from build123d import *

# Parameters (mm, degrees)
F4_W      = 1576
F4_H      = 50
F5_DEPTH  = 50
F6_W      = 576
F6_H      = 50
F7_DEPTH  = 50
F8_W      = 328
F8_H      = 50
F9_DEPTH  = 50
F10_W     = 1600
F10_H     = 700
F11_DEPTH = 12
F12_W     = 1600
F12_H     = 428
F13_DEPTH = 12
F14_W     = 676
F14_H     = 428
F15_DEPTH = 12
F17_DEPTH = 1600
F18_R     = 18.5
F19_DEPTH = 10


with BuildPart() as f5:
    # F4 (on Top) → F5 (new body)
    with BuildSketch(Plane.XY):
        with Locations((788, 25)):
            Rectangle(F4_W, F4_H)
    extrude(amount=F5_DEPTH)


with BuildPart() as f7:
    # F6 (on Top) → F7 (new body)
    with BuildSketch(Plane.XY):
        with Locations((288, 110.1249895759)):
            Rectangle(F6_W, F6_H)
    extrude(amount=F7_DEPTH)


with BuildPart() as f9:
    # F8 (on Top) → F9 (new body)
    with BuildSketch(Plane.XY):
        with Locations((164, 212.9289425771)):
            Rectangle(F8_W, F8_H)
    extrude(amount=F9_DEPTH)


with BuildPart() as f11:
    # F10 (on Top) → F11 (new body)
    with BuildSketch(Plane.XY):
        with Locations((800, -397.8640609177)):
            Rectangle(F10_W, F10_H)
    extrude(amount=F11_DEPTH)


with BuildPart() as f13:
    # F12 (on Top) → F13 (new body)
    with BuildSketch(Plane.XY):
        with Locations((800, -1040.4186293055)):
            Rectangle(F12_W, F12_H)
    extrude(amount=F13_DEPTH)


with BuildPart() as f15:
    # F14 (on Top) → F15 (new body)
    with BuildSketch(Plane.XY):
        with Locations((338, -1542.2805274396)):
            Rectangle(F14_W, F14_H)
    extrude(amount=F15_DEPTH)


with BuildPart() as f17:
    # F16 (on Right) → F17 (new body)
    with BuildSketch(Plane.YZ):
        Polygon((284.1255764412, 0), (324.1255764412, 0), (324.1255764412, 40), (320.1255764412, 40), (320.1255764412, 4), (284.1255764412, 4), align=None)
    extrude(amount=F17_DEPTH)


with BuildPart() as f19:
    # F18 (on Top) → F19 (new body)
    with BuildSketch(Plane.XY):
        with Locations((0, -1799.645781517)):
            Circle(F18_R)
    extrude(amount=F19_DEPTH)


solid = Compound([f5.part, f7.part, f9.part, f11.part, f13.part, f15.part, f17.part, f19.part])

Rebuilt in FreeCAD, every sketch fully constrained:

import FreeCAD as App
import Part
import Sketcher

V = App.Vector


def add_polygon(sketch, points):
    """Adds a closed chain of lines whose ends are joined by coincident constraints."""
    first, n = sketch.GeometryCount, len(points)
    for a, b in zip(points, points[1:] + points[:1]):
        sketch.addGeometry(Part.LineSegment(App.Vector(*a, 0), App.Vector(*b, 0)), False)
    for i in range(n):
        sketch.addConstraint(Sketcher.Constraint("Coincident", first + i, 2, first + (i + 1) % n, 1))

doc = App.newDocument("Part")
body = doc.addObject("PartDesign::Body", "Body")

# Sketch on XY plane
sketch1 = doc.addObject("Sketcher::SketchObject", "Sketch")
body.addObject(sketch1)
sketch1.AttachmentSupport = (doc.XY_Plane, [""])
sketch1.MapMode = "FlatFace"
add_polygon(sketch1, [(0, 50), (0, 0), (1576, 0), (1576, 50)])  # lines 0-3
sketch1.addConstraint([
    Sketcher.Constraint("Vertical", 0),
    Sketcher.Constraint("Horizontal", 1),
    Sketcher.Constraint("Vertical", 2),
    Sketcher.Constraint("Horizontal", 3),
    Sketcher.Constraint("Coincident", 0, 2, -1, 1),
    Sketcher.Constraint("DistanceX", 1, 1, 1, 2, 1576.0),
    Sketcher.Constraint("DistanceY", 0, 2, 0, 1, 50.0),
])
pad1 = doc.addObject("PartDesign::Pad", "Pad")
body.addObject(pad1)
pad1.Profile = sketch1
pad1.Length = 50
body2 = doc.addObject("PartDesign::Body", "Body001")

# Sketch on XY plane
sketch2 = doc.addObject("Sketcher::SketchObject", "Sketch001")
body2.addObject(sketch2)
sketch2.AttachmentSupport = (doc.getObject("XY_Plane001"), [""])
sketch2.MapMode = "FlatFace"
add_polygon(sketch2, [(0, 135.12499), (0, 85.12499), (576, 85.12499), (576, 135.12499)])  # lines 0-3
sketch2.addConstraint([
    Sketcher.Constraint("Vertical", 0),
    Sketcher.Constraint("Horizontal", 1),
    Sketcher.Constraint("Vertical", 2),
    Sketcher.Constraint("Horizontal", 3),
    Sketcher.Constraint("PointOnObject", 0, 2, -2),
    Sketcher.Constraint("DistanceX", 1, 1, 1, 2, 576.0),
    Sketcher.Constraint("DistanceY", 0, 2, 0, 1, 50.0),
    Sketcher.Constraint("DistanceY", -1, 1, 0, 2, 85.12499),
])
pad2 = doc.addObject("PartDesign::Pad", "Pad001")
body2.addObject(pad2)
pad2.Profile = sketch2
pad2.Length = 50
body3 = doc.addObject("PartDesign::Body", "Body002")

# Sketch on XY plane
sketch3 = doc.addObject("Sketcher::SketchObject", "Sketch002")
body3.addObject(sketch3)
sketch3.AttachmentSupport = (doc.getObject("XY_Plane002"), [""])
sketch3.MapMode = "FlatFace"
add_polygon(sketch3, [(0, 237.928943), (0, 187.928943), (328, 187.928943), (328, 237.928943)])  # lines 0-3
sketch3.addConstraint([
    Sketcher.Constraint("Vertical", 0),
    Sketcher.Constraint("Horizontal", 1),
    Sketcher.Constraint("Vertical", 2),
    Sketcher.Constraint("Horizontal", 3),
    Sketcher.Constraint("PointOnObject", 0, 2, -2),
    Sketcher.Constraint("DistanceX", 1, 1, 1, 2, 328.0),
    Sketcher.Constraint("DistanceY", 0, 2, 0, 1, 50.0),
    Sketcher.Constraint("DistanceY", -1, 1, 0, 2, 187.928943),
])
pad3 = doc.addObject("PartDesign::Pad", "Pad002")
body3.addObject(pad3)
pad3.Profile = sketch3
pad3.Length = 50
body4 = doc.addObject("PartDesign::Body", "Body003")

# Sketch on XY plane
sketch4 = doc.addObject("Sketcher::SketchObject", "Sketch003")
body4.addObject(sketch4)
sketch4.AttachmentSupport = (doc.getObject("XY_Plane003"), [""])
sketch4.MapMode = "FlatFace"
add_polygon(sketch4, [(0, -47.864061), (0, -747.864061), (1600, -747.864061), (1600, -47.864061)])  # lines 0-3
sketch4.addConstraint([
    Sketcher.Constraint("Vertical", 0),
    Sketcher.Constraint("Horizontal", 1),
    Sketcher.Constraint("Vertical", 2),
    Sketcher.Constraint("Horizontal", 3),
    Sketcher.Constraint("PointOnObject", 0, 2, -2),
    Sketcher.Constraint("DistanceX", 1, 1, 1, 2, 1600.0),
    Sketcher.Constraint("DistanceY", 0, 2, 0, 1, 700.0),
    Sketcher.Constraint("DistanceY", 0, 2, -1, 1, 747.864061),
])
pad4 = doc.addObject("PartDesign::Pad", "Pad003")
body4.addObject(pad4)
pad4.Profile = sketch4
pad4.Length = 12
body5 = doc.addObject("PartDesign::Body", "Body004")

# Sketch on XY plane
sketch5 = doc.addObject("Sketcher::SketchObject", "Sketch004")
body5.addObject(sketch5)
sketch5.AttachmentSupport = (doc.getObject("XY_Plane004"), [""])
sketch5.MapMode = "FlatFace"
add_polygon(sketch5, [(0, -826.418629), (0, -1254.418629), (1600, -1254.418629), (1600, -826.418629)])  # lines 0-3
sketch5.addConstraint([
    Sketcher.Constraint("Vertical", 0),
    Sketcher.Constraint("Horizontal", 1),
    Sketcher.Constraint("Vertical", 2),
    Sketcher.Constraint("Horizontal", 3),
    Sketcher.Constraint("PointOnObject", 0, 2, -2),
    Sketcher.Constraint("DistanceX", 1, 1, 1, 2, 1600.0),
    Sketcher.Constraint("DistanceY", 0, 2, 0, 1, 428.0),
    Sketcher.Constraint("DistanceY", 0, 2, -1, 1, 1254.418629),
])
pad5 = doc.addObject("PartDesign::Pad", "Pad004")
body5.addObject(pad5)
pad5.Profile = sketch5
pad5.Length = 12
body6 = doc.addObject("PartDesign::Body", "Body005")

# Sketch on XY plane
sketch6 = doc.addObject("Sketcher::SketchObject", "Sketch005")
body6.addObject(sketch6)
sketch6.AttachmentSupport = (doc.getObject("XY_Plane005"), [""])
sketch6.MapMode = "FlatFace"
add_polygon(sketch6, [(0, -1328.280527), (0, -1756.280527), (676, -1756.280527), (676, -1328.280527)])  # lines 0-3
sketch6.addConstraint([
    Sketcher.Constraint("Vertical", 0),
    Sketcher.Constraint("Horizontal", 1),
    Sketcher.Constraint("Vertical", 2),
    Sketcher.Constraint("Horizontal", 3),
    Sketcher.Constraint("PointOnObject", 0, 2, -2),
    Sketcher.Constraint("DistanceX", 1, 1, 1, 2, 676.0),
    Sketcher.Constraint("DistanceY", 0, 2, 0, 1, 428.0),
    Sketcher.Constraint("DistanceY", 0, 2, -1, 1, 1756.280527),
])
pad6 = doc.addObject("PartDesign::Pad", "Pad005")
body6.addObject(pad6)
pad6.Profile = sketch6
pad6.Length = 12
body7 = doc.addObject("PartDesign::Body", "Body006")

# Sketch on YZ plane
sketch7 = doc.addObject("Sketcher::SketchObject", "Sketch006")
body7.addObject(sketch7)
sketch7.AttachmentSupport = (doc.getObject("YZ_Plane006"), [""])
sketch7.MapMode = "FlatFace"
add_polygon(sketch7, [(284.125576, 0), (324.125576, 0), (324.125576, 40), (320.125576, 40), (320.125576, 4), (284.125576, 4)])  # lines 0-5
sketch7.addConstraint([
    Sketcher.Constraint("Horizontal", 0),
    Sketcher.Constraint("Vertical", 1),
    Sketcher.Constraint("Horizontal", 2),
    Sketcher.Constraint("Vertical", 3),
    Sketcher.Constraint("Horizontal", 4),
    Sketcher.Constraint("Vertical", 5),
    Sketcher.Constraint("PointOnObject", 0, 2, -1),
    Sketcher.Constraint("Equal", 0, 1),
    Sketcher.Constraint("Equal", 4, 3),
    Sketcher.Constraint("DistanceX", 0, 1, 0, 2, 40.0),
    Sketcher.Constraint("DistanceX", 2, 2, 2, 1, 4.0),
    Sketcher.Constraint("DistanceX", -1, 1, 0, 2, 324.125576),
])
pad7 = doc.addObject("PartDesign::Pad", "Pad006")
body7.addObject(pad7)
pad7.Profile = sketch7
pad7.Length = 1600
body8 = doc.addObject("PartDesign::Body", "Body007")

# Sketch on XY plane
sketch8 = doc.addObject("Sketcher::SketchObject", "Sketch007")
body8.addObject(sketch8)
sketch8.AttachmentSupport = (doc.getObject("XY_Plane007"), [""])
sketch8.MapMode = "FlatFace"
sketch8.addGeometry(Part.Circle(V(0, -1799.645782, 0), V(0, 0, 1), 18.5), False)
sketch8.addConstraint([
    Sketcher.Constraint("PointOnObject", 0, 3, -2),
    Sketcher.Constraint("Diameter", 0, 37.0),
    Sketcher.Constraint("DistanceY", 0, 3, -1, 1, 1799.645782),
])
pad8 = doc.addObject("PartDesign::Pad", "Pad007")
body8.addObject(pad8)
pad8.Profile = sketch8
pad8.Length = 10

doc.recompute()
